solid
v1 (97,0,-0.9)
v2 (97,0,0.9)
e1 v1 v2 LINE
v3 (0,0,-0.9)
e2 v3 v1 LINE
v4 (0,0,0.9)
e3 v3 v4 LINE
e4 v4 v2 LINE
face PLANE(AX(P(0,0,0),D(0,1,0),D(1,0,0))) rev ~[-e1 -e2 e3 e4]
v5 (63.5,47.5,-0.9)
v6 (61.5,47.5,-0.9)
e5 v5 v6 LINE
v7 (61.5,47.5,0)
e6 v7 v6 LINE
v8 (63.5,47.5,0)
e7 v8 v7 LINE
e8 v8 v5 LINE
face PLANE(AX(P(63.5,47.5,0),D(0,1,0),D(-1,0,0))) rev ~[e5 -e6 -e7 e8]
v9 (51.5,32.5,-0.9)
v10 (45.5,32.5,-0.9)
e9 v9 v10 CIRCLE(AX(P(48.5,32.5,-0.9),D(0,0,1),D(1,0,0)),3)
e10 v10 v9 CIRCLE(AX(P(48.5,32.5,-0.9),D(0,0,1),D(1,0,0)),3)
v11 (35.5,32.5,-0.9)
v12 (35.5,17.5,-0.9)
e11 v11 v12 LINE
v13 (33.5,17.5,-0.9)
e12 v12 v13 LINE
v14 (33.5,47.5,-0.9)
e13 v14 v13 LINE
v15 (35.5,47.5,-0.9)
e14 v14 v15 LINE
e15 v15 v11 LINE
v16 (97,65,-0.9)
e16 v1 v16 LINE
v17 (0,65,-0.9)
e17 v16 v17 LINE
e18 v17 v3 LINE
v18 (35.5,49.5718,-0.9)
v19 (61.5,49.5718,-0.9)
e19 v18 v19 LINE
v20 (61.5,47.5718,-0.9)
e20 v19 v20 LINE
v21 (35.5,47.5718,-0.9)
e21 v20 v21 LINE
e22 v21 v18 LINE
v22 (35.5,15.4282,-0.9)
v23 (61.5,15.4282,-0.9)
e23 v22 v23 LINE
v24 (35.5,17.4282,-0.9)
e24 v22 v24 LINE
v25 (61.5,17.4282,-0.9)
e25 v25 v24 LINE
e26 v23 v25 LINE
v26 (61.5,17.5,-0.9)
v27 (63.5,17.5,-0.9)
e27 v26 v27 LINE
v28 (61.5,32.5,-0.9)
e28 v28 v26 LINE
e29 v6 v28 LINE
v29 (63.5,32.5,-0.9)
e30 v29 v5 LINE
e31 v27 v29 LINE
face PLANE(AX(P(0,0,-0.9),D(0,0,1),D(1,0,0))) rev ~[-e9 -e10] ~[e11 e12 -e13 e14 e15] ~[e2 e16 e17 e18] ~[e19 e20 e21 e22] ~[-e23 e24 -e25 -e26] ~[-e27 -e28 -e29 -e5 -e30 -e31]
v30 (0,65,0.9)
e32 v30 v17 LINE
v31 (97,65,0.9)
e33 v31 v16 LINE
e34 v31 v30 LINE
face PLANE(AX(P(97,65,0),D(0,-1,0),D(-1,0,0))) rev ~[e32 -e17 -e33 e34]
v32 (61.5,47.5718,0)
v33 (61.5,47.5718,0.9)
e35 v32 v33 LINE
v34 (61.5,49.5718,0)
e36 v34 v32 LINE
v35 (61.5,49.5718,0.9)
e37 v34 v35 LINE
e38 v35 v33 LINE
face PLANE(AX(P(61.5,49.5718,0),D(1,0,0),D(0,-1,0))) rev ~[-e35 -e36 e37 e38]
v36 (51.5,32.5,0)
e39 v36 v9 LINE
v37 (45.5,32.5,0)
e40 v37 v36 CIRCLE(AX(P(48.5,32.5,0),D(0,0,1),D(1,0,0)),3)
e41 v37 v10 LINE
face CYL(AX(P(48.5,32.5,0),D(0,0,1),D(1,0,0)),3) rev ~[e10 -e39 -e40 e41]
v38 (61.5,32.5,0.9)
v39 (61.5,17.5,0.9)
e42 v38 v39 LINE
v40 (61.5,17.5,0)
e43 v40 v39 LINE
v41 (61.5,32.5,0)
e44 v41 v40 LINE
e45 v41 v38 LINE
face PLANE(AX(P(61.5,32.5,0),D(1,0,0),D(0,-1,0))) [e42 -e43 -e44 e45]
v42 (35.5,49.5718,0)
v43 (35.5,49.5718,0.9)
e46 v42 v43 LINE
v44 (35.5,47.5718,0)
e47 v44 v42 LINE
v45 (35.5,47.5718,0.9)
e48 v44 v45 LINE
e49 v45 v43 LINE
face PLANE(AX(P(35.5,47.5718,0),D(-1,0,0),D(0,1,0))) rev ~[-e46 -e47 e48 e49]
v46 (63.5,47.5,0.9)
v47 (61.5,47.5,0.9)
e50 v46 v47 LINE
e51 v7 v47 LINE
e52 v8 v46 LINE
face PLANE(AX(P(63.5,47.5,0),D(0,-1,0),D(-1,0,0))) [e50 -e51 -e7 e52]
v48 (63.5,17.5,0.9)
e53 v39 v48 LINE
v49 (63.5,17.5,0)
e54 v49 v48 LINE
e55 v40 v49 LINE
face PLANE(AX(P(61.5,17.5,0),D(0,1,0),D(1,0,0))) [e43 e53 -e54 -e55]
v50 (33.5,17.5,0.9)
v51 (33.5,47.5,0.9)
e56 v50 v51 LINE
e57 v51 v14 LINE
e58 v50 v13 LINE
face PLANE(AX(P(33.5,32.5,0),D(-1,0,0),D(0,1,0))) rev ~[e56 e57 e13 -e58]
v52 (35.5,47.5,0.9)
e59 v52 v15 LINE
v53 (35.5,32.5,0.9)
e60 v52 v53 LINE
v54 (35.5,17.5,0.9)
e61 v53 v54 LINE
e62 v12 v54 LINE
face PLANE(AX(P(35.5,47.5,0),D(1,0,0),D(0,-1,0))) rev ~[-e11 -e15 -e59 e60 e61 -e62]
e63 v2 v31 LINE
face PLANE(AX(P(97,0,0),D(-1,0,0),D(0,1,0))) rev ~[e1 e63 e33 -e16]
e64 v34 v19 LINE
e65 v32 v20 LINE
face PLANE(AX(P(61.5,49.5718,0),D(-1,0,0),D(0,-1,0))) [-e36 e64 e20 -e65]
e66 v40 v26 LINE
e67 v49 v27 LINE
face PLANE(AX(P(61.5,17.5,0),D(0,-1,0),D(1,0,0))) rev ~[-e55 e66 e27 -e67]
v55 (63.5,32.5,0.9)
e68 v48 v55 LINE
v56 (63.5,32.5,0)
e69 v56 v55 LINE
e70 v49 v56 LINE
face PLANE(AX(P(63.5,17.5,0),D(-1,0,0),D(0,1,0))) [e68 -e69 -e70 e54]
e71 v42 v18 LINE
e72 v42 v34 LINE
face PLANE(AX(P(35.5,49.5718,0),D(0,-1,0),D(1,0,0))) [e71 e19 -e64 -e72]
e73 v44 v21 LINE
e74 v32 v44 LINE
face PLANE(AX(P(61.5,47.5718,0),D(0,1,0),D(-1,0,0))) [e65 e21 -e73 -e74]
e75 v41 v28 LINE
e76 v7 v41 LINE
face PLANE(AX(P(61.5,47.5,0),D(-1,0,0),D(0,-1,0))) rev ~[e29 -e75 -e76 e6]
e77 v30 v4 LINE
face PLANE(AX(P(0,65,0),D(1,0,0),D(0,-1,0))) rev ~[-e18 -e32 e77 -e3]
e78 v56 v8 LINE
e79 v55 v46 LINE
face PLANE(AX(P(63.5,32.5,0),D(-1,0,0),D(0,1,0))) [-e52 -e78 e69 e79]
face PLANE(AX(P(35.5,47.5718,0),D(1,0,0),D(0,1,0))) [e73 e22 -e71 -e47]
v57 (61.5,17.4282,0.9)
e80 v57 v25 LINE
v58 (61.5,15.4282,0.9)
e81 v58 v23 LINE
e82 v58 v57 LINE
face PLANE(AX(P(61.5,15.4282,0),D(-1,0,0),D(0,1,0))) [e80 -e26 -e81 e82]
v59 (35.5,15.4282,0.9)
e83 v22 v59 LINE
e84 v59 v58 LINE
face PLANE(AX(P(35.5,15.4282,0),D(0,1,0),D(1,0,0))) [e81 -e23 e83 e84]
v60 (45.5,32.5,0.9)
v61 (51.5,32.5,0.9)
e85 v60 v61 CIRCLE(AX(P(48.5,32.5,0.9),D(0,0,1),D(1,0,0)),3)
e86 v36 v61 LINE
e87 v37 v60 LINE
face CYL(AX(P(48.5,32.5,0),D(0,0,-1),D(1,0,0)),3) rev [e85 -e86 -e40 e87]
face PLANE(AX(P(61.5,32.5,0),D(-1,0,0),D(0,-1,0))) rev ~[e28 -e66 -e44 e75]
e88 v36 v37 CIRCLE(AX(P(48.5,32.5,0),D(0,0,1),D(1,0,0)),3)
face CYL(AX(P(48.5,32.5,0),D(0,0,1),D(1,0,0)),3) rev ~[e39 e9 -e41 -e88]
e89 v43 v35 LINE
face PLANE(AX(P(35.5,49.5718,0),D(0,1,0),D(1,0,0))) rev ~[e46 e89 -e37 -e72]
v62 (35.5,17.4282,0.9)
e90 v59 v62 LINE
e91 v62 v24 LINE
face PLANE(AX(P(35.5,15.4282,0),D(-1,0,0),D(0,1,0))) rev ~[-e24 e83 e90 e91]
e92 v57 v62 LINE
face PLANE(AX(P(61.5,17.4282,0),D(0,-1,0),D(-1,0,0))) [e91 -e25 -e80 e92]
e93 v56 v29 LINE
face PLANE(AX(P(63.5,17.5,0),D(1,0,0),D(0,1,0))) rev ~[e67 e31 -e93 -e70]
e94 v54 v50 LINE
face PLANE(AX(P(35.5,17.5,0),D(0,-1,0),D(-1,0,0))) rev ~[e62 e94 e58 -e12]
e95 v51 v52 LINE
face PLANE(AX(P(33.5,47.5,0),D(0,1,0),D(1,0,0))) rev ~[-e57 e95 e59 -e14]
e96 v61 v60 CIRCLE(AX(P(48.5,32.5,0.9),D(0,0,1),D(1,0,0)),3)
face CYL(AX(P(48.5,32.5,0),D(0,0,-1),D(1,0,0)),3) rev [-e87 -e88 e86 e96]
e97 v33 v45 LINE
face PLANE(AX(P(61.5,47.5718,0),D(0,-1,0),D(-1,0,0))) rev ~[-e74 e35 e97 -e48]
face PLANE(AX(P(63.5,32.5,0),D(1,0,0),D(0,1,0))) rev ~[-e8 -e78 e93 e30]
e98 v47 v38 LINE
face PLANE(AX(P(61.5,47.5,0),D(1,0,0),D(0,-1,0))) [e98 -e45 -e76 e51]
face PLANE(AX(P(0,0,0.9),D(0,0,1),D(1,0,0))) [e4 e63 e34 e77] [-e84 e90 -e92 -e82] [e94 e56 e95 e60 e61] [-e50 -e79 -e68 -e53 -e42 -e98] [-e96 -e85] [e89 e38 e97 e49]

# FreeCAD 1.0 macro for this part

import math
import FreeCAD as App
import Part
import Sketcher

V = App.Vector
Q = App.Units.Quantity

doc = App.newDocument("Part")
body = doc.addObject("PartDesign::Body", "Body")

# Sketch on XY plane
sketch1 = doc.addObject("Sketcher::SketchObject", "Sketch")
body.addObject(sketch1)
sketch1.AttachmentSupport = (doc.XY_Plane, [""])
sketch1.MapMode = "FlatFace"
sketch1.addGeometry([
    Part.LineSegment(V(0, 65, 0), V(0, 0, 0)),  # 0
    Part.LineSegment(V(0, 0, 0), V(97, 0, 0)),  # 1
    Part.LineSegment(V(97, 0, 0), V(97, 65, 0)),  # 2
    Part.LineSegment(V(97, 65, 0), V(0, 65, 0)),  # 3
    Part.LineSegment(V(61.5, 15.4, 0), V(35.5, 15.4, 0)),  # 4
    Part.LineSegment(V(35.5, 15.4, 0), V(35.5, 17.4, 0)),  # 5
    Part.LineSegment(V(35.5, 17.4, 0), V(61.5, 17.4, 0)),  # 6
    Part.LineSegment(V(61.5, 17.4, 0), V(61.5, 15.4, 0)),  # 7
    Part.LineSegment(V(35.5, 47.5, 0), V(35.5, 32.5, 0)),  # 8
    Part.LineSegment(V(35.5, 32.5, 0), V(35.5, 17.5, 0)),  # 9
    Part.LineSegment(V(35.5, 17.5, 0), V(33.5, 17.5, 0)),  # 10
    Part.LineSegment(V(33.5, 17.5, 0), V(33.5, 47.5, 0)),  # 11
    Part.LineSegment(V(33.5, 47.5, 0), V(35.5, 47.5, 0)),  # 12
    Part.ArcOfCircle(Part.Circle(V(48.5, 32.5, 0), V(0, 0, 1), 3), math.radians(0), math.radians(180)),  # 13
    Part.ArcOfCircle(Part.Circle(V(48.5, 32.5, 0), V(0, 0, 1), 3), math.radians(180), math.radians(360)),  # 14
    Part.LineSegment(V(61.5, 17.5, 0), V(61.5, 32.5, 0)),  # 15
    Part.LineSegment(V(61.5, 32.5, 0), V(61.5, 47.5, 0)),  # 16
    Part.LineSegment(V(61.5, 47.5, 0), V(63.5, 47.5, 0)),  # 17
    Part.LineSegment(V(63.5, 47.5, 0), V(63.5, 17.5, 0)),  # 18
    Part.LineSegment(V(63.5, 17.5, 0), V(61.5, 17.5, 0)),  # 19
    Part.LineSegment(V(35.5, 47.6, 0), V(35.5, 49.6, 0)),  # 20
    Part.LineSegment(V(35.5, 49.6, 0), V(61.5, 49.6, 0)),  # 21
    Part.LineSegment(V(61.5, 49.6, 0), V(61.5, 47.6, 0)),  # 22
    Part.LineSegment(V(61.5, 47.6, 0), V(35.5, 47.6, 0)),  # 23
], False)
sketch1.addConstraint([
    Sketcher.Constraint("Coincident", 0, 2, 1, 1),
    Sketcher.Constraint("Coincident", 1, 2, 2, 1),
    Sketcher.Constraint("Coincident", 2, 2, 3, 1),
    Sketcher.Constraint("Coincident", 3, 2, 0, 1),
    Sketcher.Constraint("Coincident", 4, 2, 5, 1),
    Sketcher.Constraint("Coincident", 5, 2, 6, 1),
    Sketcher.Constraint("Coincident", 6, 2, 7, 1),
    Sketcher.Constraint("Coincident", 7, 2, 4, 1),
    Sketcher.Constraint("Coincident", 8, 2, 9, 1),
    Sketcher.Constraint("Coincident", 9, 2, 10, 1),
    Sketcher.Constraint("Coincident", 10, 2, 11, 1),
    Sketcher.Constraint("Coincident", 11, 2, 12, 1),
    Sketcher.Constraint("Coincident", 12, 2, 8, 1),
    Sketcher.Constraint("Tangent", 13, 1, 14, 2),
    Sketcher.Constraint("Coincident", 14, 1, 13, 2),
    Sketcher.Constraint("Coincident", 15, 2, 16, 1),
    Sketcher.Constraint("Coincident", 16, 2, 17, 1),
    Sketcher.Constraint("Coincident", 17, 2, 18, 1),
    Sketcher.Constraint("Coincident", 18, 2, 19, 1),
    Sketcher.Constraint("Coincident", 19, 2, 15, 1),
    Sketcher.Constraint("Coincident", 20, 2, 21, 1),
    Sketcher.Constraint("Coincident", 21, 2, 22, 1),
    Sketcher.Constraint("Coincident", 22, 2, 23, 1),
    Sketcher.Constraint("Coincident", 23, 2, 20, 1),
    Sketcher.Constraint("Vertical", 0),
    Sketcher.Constraint("Horizontal", 1),
    Sketcher.Constraint("Vertical", 2),
    Sketcher.Constraint("Horizontal", 3),
    Sketcher.Constraint("Horizontal", 4),
    Sketcher.Constraint("Vertical", 5),
    Sketcher.Constraint("Horizontal", 6),
    Sketcher.Constraint("Vertical", 7),
    Sketcher.Constraint("Vertical", 8),
    Sketcher.Constraint("Vertical", 9),
    Sketcher.Constraint("Horizontal", 10),
    Sketcher.Constraint("Vertical", 11),
    Sketcher.Constraint("Horizontal", 12),
    Sketcher.Constraint("Vertical", 15),
    Sketcher.Constraint("Vertical", 16),
    Sketcher.Constraint("Horizontal", 17),
    Sketcher.Constraint("Vertical", 18),
    Sketcher.Constraint("Horizontal", 19),
    Sketcher.Constraint("Vertical", 20),
    Sketcher.Constraint("Horizontal", 21),
    Sketcher.Constraint("Vertical", 22),
    Sketcher.Constraint("Horizontal", 23),
    Sketcher.Constraint("Coincident", 0, 2, -1, 1),
    Sketcher.Constraint("Horizontal", 14, 3, 8, 2),
    Sketcher.Constraint("Horizontal", 8, 2, 13, 1),
    Sketcher.Constraint("Horizontal", 13, 1, 14, 1),
    Sketcher.Constraint("Horizontal", 14, 1, 15, 2),
    Sketcher.Constraint("Horizontal", 12, 2, 16, 2),
    Sketcher.Constraint("Horizontal", 10, 2, 18, 2),
    Sketcher.Constraint("Vertical", 5, 2, 8, 2),
    Sketcher.Constraint("Vertical", 7, 2, 15, 2),
    Sketcher.Constraint("Vertical", 12, 2, 20, 2),
    Sketcher.Constraint("Vertical", 19, 2, 21, 2),
    Sketcher.Constraint("Equal", 12, 17),
    Sketcher.Constraint("Equal", 19, 5),
    Sketcher.Constraint("Equal", 8, 9),
    Sketcher.Constraint("Equal", 7, 20),
    Sketcher.Constraint("Radius", 13, Q("3 mm")),
    Sketcher.Constraint("DistanceX", 1, 1, 1, 2, Q("97 mm")),
    Sketcher.Constraint("DistanceX", 4, 2, 4, 1, Q("26 mm")),
    Sketcher.Constraint("DistanceX", 10, 2, 10, 1, Q("2 mm")),
    Sketcher.Constraint("DistanceY", 0, 2, 0, 1, Q("65 mm")),
    Sketcher.Constraint("DistanceY", 8, 2, 8, 1, Q("15 mm")),
    Sketcher.Constraint("DistanceX", 10, 2, 13, 3, Q("15 mm")),
    Sketcher.Constraint("DistanceX", -1, 1, 13, 3, Q("48.5 mm")),
    Sketcher.Constraint("DistanceY", -1, 1, 13, 3, Q("32.5 mm")),
    Sketcher.Constraint("DistanceY", -1, 1, 4, 2, Q("15.4282 mm")),
    Sketcher.Constraint("DistanceY", -1, 1, 20, 2, Q("49.5718 mm")),
])
pad1 = doc.addObject("PartDesign::Pad", "Pad")
body.addObject(pad1)
pad1.Profile = sketch1
pad1.Length = 1.8
pad1.Midplane = True

doc.recompute()
